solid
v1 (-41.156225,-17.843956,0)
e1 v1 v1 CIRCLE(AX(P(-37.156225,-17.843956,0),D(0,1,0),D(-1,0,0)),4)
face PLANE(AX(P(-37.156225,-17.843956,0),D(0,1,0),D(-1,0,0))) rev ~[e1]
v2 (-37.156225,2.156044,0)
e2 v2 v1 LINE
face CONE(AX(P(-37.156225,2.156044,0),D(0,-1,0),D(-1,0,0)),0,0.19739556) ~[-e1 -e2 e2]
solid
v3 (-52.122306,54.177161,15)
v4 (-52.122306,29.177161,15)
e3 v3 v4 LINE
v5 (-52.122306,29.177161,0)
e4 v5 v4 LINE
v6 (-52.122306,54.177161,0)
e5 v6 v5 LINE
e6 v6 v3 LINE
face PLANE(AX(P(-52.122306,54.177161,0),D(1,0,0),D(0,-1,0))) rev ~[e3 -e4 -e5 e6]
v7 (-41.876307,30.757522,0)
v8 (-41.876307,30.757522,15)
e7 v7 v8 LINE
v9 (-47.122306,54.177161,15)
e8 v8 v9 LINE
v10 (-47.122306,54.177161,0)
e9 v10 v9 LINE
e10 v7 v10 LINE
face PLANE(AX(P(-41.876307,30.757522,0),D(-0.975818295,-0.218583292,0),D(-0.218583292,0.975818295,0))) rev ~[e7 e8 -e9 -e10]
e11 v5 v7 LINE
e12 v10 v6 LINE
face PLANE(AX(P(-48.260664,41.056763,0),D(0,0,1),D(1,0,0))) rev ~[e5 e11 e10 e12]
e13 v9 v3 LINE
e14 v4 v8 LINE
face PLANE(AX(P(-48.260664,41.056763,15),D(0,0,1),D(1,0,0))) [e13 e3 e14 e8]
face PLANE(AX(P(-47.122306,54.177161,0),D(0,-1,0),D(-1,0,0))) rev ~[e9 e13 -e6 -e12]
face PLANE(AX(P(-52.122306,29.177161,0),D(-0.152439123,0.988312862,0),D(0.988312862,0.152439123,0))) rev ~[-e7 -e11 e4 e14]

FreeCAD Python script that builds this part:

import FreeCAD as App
import Part
import Sketcher
from FreeCAD import Vector


def add_polygon(sketch, points):
    """Adds a closed chain of lines whose ends are joined by coincident constraints."""
    first, n = sketch.GeometryCount, len(points)
    for a, b in zip(points, points[1:] + points[:1]):
        sketch.addGeometry(Part.LineSegment(App.Vector(*a, 0), App.Vector(*b, 0)), False)
    for i in range(n):
        sketch.addConstraint(Sketcher.Constraint("Coincident", first + i, 2, first + (i + 1) % n, 1))

doc = App.newDocument("Part")
body = doc.addObject("PartDesign::Body", "Body")

# Sketch on XY plane
sketch1 = body.newObject("Sketcher::SketchObject", "Sketch")
sketch1.AttachmentSupport = (doc.getObject("XY_Plane"), [""])
sketch1.MapMode = "FlatFace"
add_polygon(sketch1, [(-37.2, 2.2), (-41.2, -17.8), (-37.2, -17.8)])  # lines 0-2
sketch1.addGeometry(Part.LineSegment(Vector(-37.2, -17.8, 0), Vector(-37.2, 2.2, 0)), True)  # axis
sketch1.addConstraint(Sketcher.Constraint("Horizontal", 1))
sketch1.addConstraint(Sketcher.Constraint("Vertical", 2))
sketch1.addConstraint(Sketcher.Constraint("Vertical", 3))
sketch1.addConstraint(Sketcher.Constraint("Coincident", 3, 1, 1, 2))
sketch1.addConstraint(Sketcher.Constraint("Equal", 2, 3))
sketch1.addConstraint(Sketcher.Constraint("DistanceX", 1, 1, 1, 2, 4.0))
sketch1.addConstraint(Sketcher.Constraint("DistanceY", 2, 1, 2, 2, 20.0))
sketch1.addConstraint(Sketcher.Constraint("DistanceX", 0, 2, -1, 1, 41.156225))
sketch1.addConstraint(Sketcher.Constraint("DistanceY", 0, 2, -1, 1, 17.843956))
revolution = body.newObject("PartDesign::Revolution", "Revolution")
revolution.Profile = sketch1
revolution.ReferenceAxis = (sketch1, ["Axis0"])
revolution.Angle = 360
body2 = doc.addObject("PartDesign::Body", "Body001")

# Sketch on XY plane
sketch2 = body2.newObject("Sketcher::SketchObject", "Sketch001")
sketch2.AttachmentSupport = (doc.getObject("XY_Plane001"), [""])
sketch2.MapMode = "FlatFace"
add_polygon(sketch2, [(-47, 54), (-52, 54), (-52, 29), (-42, 31)])  # lines 0-3
sketch2.addConstraint(Sketcher.Constraint("Horizontal", 0))
sketch2.addConstraint(Sketcher.Constraint("Vertical", 1))
sketch2.addConstraint(Sketcher.Constraint("DistanceX", 0, 2, 0, 1, 5.0))
sketch2.addConstraint(Sketcher.Constraint("DistanceY", 1, 2, 1, 1, 25.0))
sketch2.addConstraint(Sketcher.Constraint("Distance", 3, 24.0))
sketch2.addConstraint(Sketcher.Constraint("DistanceX", 1, 2, 2, 2, 10.245999))
sketch2.addConstraint(Sketcher.Constraint("DistanceY", -1, 1, 0, 2, 54.177161))
sketch2.addConstraint(Sketcher.Constraint("DistanceX", 0, 2, -1, 1, 52.122306))
pad1 = body2.newObject("PartDesign::Pad", "Pad")
pad1.Profile = sketch2
pad1.Length = 15

doc.recompute()
